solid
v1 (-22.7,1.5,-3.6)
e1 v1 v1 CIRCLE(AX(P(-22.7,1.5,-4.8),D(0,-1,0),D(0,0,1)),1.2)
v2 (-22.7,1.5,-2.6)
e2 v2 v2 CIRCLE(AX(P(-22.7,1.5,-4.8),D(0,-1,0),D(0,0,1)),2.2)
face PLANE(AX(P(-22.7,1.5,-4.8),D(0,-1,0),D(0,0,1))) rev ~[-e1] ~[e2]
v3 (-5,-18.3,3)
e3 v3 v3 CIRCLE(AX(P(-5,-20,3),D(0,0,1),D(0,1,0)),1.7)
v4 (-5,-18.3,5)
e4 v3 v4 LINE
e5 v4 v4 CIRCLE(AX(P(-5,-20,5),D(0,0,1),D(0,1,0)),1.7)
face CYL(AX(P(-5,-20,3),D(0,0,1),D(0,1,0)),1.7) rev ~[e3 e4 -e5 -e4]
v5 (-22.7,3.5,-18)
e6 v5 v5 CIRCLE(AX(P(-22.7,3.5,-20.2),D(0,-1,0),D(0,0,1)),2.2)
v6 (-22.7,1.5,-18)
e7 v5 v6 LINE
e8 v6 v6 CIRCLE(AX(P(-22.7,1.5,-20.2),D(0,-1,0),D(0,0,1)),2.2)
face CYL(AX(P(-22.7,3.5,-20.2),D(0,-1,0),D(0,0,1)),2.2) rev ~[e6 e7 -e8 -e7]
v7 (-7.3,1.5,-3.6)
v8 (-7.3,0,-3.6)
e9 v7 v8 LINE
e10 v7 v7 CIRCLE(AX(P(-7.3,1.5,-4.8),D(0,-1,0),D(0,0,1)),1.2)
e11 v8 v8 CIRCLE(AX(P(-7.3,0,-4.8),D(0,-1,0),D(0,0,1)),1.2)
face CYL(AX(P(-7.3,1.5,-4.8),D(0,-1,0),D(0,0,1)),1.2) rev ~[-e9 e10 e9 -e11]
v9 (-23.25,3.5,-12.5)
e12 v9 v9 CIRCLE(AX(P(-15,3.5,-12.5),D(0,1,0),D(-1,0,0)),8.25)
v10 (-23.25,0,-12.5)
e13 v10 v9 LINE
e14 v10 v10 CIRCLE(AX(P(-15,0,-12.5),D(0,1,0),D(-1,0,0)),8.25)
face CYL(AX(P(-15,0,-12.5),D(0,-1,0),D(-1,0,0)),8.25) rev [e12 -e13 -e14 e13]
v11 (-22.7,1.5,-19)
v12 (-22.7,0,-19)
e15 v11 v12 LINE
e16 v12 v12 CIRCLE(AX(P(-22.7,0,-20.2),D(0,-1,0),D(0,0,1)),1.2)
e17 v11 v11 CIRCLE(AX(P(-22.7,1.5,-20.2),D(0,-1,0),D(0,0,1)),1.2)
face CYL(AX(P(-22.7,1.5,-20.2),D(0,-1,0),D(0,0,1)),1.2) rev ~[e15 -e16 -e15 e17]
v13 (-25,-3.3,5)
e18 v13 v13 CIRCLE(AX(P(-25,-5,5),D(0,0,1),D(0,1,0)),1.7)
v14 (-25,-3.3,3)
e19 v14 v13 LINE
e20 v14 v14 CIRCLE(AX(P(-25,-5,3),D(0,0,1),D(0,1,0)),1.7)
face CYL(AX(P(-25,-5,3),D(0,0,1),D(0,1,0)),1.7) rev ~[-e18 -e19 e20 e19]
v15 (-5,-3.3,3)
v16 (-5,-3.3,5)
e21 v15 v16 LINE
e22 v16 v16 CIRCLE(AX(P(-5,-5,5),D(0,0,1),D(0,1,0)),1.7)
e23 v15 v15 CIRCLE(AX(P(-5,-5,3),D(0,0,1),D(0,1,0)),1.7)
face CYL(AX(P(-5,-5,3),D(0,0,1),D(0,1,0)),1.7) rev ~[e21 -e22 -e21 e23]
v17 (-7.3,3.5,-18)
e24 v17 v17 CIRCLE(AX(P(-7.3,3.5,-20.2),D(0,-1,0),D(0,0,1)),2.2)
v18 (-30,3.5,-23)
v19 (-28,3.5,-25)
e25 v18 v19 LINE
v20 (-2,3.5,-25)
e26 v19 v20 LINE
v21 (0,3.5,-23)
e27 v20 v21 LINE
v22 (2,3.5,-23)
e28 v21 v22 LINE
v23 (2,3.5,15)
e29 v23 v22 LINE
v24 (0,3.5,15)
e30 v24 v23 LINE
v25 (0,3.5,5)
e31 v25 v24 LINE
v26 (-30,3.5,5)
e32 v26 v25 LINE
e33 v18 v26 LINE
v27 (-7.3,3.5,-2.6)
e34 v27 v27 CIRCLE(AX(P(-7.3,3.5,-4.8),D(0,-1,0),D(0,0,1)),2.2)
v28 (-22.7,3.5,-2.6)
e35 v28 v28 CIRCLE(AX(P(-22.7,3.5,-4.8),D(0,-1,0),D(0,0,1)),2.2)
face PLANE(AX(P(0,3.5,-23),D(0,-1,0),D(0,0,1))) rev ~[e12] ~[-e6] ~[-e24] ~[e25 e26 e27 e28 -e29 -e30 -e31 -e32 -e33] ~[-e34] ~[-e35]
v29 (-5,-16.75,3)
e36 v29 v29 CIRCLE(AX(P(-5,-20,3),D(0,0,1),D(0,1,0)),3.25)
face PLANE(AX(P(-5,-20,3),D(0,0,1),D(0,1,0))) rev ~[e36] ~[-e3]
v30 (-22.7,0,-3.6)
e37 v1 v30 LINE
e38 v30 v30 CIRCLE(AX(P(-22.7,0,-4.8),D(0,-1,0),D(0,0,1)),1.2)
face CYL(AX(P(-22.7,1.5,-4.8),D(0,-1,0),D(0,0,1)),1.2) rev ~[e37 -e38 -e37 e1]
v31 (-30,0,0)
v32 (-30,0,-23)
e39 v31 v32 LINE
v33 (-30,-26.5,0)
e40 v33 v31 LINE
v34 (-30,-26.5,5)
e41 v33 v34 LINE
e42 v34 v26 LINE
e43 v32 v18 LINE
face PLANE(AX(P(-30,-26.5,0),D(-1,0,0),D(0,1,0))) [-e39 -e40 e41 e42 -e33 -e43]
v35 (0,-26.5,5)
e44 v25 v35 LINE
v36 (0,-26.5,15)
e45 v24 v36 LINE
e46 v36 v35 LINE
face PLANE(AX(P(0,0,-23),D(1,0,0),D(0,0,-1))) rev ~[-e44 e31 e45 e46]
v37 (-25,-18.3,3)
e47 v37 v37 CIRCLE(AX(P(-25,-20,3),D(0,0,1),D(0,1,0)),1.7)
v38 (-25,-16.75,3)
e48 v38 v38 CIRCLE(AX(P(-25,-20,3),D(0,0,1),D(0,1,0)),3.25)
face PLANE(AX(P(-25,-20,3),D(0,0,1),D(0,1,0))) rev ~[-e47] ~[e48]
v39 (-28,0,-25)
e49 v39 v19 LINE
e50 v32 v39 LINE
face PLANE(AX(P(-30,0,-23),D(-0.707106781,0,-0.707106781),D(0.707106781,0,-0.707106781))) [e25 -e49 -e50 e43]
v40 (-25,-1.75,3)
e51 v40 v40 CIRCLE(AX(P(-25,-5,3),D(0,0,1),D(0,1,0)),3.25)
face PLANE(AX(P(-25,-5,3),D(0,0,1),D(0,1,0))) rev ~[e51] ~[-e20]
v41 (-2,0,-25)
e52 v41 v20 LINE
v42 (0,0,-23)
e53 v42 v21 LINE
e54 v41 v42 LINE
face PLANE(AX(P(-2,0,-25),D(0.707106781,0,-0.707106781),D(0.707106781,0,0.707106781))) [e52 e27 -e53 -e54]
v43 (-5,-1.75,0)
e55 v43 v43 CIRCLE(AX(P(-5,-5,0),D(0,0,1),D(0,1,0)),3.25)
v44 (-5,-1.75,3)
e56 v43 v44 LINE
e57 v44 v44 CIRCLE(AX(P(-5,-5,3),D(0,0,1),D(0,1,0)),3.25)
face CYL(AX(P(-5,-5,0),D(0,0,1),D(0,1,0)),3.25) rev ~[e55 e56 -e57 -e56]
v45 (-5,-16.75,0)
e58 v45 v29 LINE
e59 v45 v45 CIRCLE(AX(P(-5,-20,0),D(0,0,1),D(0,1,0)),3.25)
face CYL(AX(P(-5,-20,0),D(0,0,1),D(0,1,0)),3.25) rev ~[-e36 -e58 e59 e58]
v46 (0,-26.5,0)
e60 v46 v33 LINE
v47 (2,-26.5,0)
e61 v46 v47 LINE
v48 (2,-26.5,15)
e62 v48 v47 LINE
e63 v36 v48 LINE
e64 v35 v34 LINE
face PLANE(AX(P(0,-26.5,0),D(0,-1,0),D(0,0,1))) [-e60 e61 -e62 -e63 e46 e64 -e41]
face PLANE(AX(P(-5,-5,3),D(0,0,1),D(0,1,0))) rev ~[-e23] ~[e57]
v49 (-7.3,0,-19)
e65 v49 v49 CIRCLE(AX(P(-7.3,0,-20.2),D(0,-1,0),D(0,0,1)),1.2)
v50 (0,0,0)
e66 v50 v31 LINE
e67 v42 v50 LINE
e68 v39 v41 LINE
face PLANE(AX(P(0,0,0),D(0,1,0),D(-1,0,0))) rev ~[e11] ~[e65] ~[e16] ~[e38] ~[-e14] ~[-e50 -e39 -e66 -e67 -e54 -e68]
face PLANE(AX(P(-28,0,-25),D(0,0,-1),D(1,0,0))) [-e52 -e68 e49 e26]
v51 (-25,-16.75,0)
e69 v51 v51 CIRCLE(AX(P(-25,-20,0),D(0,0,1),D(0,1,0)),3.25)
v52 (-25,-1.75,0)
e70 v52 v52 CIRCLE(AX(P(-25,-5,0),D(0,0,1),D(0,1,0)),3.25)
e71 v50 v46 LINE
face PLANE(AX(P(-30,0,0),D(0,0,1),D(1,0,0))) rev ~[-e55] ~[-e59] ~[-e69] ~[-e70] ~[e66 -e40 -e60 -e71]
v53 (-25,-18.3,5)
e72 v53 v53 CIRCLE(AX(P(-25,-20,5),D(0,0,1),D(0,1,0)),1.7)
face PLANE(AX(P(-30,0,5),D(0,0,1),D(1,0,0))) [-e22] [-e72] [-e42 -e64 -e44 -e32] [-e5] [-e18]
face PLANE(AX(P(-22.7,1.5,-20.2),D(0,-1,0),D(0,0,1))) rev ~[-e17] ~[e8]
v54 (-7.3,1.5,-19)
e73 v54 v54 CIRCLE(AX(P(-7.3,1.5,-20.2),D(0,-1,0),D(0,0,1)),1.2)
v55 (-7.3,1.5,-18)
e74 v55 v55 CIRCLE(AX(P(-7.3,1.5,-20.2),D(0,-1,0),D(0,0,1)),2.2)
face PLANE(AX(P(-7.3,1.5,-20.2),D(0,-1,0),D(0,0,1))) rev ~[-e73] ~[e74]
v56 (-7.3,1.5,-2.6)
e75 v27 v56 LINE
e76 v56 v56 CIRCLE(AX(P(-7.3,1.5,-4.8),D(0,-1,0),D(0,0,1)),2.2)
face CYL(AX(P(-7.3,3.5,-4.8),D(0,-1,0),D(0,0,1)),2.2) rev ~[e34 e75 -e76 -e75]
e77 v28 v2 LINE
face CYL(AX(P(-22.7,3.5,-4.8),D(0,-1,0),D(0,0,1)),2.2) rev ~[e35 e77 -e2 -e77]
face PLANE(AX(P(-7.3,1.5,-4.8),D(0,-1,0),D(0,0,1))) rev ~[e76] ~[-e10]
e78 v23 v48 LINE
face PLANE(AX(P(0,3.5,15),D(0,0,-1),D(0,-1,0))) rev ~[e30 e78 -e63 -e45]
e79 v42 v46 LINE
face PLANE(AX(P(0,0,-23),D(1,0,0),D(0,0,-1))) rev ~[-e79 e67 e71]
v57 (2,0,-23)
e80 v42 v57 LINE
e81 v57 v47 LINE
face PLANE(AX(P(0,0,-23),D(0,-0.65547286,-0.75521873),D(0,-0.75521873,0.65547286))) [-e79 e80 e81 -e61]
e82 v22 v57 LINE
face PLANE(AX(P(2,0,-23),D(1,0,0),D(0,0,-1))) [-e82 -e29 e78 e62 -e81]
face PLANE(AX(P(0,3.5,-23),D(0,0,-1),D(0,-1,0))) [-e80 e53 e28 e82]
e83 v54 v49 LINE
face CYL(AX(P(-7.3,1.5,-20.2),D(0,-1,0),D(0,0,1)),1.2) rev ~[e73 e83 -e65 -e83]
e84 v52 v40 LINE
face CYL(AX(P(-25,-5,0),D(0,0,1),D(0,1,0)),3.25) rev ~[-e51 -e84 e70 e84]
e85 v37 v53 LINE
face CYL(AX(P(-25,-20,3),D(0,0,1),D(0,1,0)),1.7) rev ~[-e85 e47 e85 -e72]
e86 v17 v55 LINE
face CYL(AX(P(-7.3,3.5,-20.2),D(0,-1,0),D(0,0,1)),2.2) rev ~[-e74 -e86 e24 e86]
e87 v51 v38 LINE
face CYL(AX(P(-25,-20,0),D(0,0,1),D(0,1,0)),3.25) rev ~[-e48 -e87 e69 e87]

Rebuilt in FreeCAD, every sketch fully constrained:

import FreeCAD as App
import Part
import Sketcher

V = App.Vector
Q = App.Units.Quantity

doc = App.newDocument("Part")
body = doc.addObject("PartDesign::Body", "Body")

# Sketch on XZ plane
sketch1 = body.newObject("Sketcher::SketchObject", "Sketch")
sketch1.AttachmentSupport = (doc.getObject("XZ_Plane"), [""])
sketch1.MapMode = "FlatFace"
sketch1.addGeometry(Part.LineSegment(V(-30, 0, 0), V(0, 0, 0)), False)
sketch1.addGeometry(Part.LineSegment(V(0, 0, 0), V(0, -23, 0)), False)
sketch1.addGeometry(Part.LineSegment(V(0, -23, 0), V(-2, -25, 0)), False)
sketch1.addGeometry(Part.LineSegment(V(-2, -25, 0), V(-28, -25, 0)), False)
sketch1.addGeometry(Part.LineSegment(V(-28, -25, 0), V(-30, -23, 0)), False)
sketch1.addGeometry(Part.LineSegment(V(-30, -23, 0), V(-30, 0, 0)), False)
sketch1.addGeometry(Part.Circle(V(-15, -12.5, 0), V(0, 0, 1), 8.2), False)
sketch1.addConstraint(Sketcher.Constraint("Coincident", 0, 2, 1, 1))
sketch1.addConstraint(Sketcher.Constraint("Coincident", 1, 2, 2, 1))
sketch1.addConstraint(Sketcher.Constraint("Coincident", 2, 2, 3, 1))
sketch1.addConstraint(Sketcher.Constraint("Coincident", 3, 2, 4, 1))
sketch1.addConstraint(Sketcher.Constraint("Coincident", 4, 2, 5, 1))
sketch1.addConstraint(Sketcher.Constraint("Coincident", 5, 2, 0, 1))
sketch1.addConstraint(Sketcher.Constraint("Horizontal", 0))
sketch1.addConstraint(Sketcher.Constraint("Vertical", 1))
sketch1.addConstraint(Sketcher.Constraint("Horizontal", 3))
sketch1.addConstraint(Sketcher.Constraint("Vertical", 5))
sketch1.addConstraint(Sketcher.Constraint("Coincident", 0, 2, -1, 1))
sketch1.addConstraint(Sketcher.Constraint("Perpendicular", 2, 4))
sketch1.addConstraint(Sketcher.Constraint("Horizontal", 1, 2, 4, 2))
sketch1.addConstraint(Sketcher.Constraint("Equal", 2, 4))
sketch1.addConstraint(Sketcher.Constraint("Diameter", 6, Q("16.5 mm")))
sketch1.addConstraint(Sketcher.Constraint("DistanceX", 0, 1, 0, 2, Q("30 mm")))
sketch1.addConstraint(Sketcher.Constraint("DistanceX", 6, 3, -1, 1, Q("15 mm")))
sketch1.addConstraint(Sketcher.Constraint("DistanceX", 2, 2, -1, 1, Q("2 mm")))
sketch1.addConstraint(Sketcher.Constraint("DistanceY", 2, 2, -1, 1, Q("25 mm")))
sketch1.addConstraint(Sketcher.Constraint("DistanceY", 6, 3, -1, 1, Q("12.5 mm")))
pad1 = body.newObject("PartDesign::Pad", "Pad")
pad1.Profile = sketch1
pad1.Length = 3.5
pad1.Reversed = True

# Sketch on XZ plane
sketch2 = body.newObject("Sketcher::SketchObject", "Sketch001")
sketch2.AttachmentSupport = (doc.getObject("XZ_Plane"), [""])
sketch2.MapMode = "FlatFace"
sketch2.AttachmentOffset = App.Placement(V(0, 0, -3.5), App.Rotation())
sketch2.addGeometry(Part.Circle(V(-22.7, -4.8, 0), V(0, 0, 1), 1.2), False)
sketch2.addGeometry(Part.Circle(V(-22.7, -20.2, 0), V(0, 0, 1), 1.2), False)
sketch2.addGeometry(Part.Circle(V(-7.3, -20.2, 0), V(0, 0, 1), 1.2), False)
sketch2.addGeometry(Part.Circle(V(-7.3, -4.8, 0), V(0, 0, 1), 1.2), False)
sketch2.addConstraint(Sketcher.Constraint("Equal", 0, 1))
sketch2.addConstraint(Sketcher.Constraint("Equal", 1, 2))
sketch2.addConstraint(Sketcher.Constraint("Equal", 2, 3))
sketch2.addConstraint(Sketcher.Constraint("Horizontal", 1, 3, 2, 3))
sketch2.addConstraint(Sketcher.Constraint("Horizontal", 0, 3, 3, 3))
sketch2.addConstraint(Sketcher.Constraint("Vertical", 0, 3, 1, 3))
sketch2.addConstraint(Sketcher.Constraint("Vertical", 2, 3, 3, 3))
sketch2.addConstraint(Sketcher.Constraint("Diameter", 0, Q("2.4 mm")))
sketch2.addConstraint(Sketcher.Constraint("DistanceX", 0, 3, -1, 1, Q("22.7 mm")))
sketch2.addConstraint(Sketcher.Constraint("DistanceY", 0, 3, -1, 1, Q("4.8 mm")))
sketch2.addConstraint(Sketcher.Constraint("DistanceY", 1, 3, -1, 1, Q("20.2 mm")))
sketch2.addConstraint(Sketcher.Constraint("DistanceX", 2, 3, -1, 1, Q("7.3 mm")))
doc.recompute()
hole = body.newObject("PartDesign::Hole", "Hole")
hole.Profile = sketch2
hole.ThreadType = "None"
hole.Diameter = 2.4
hole.DepthType = "ThroughAll"
hole.HoleCutType = "Counterbore"
hole.HoleCutDiameter = 4.4
hole.HoleCutDepth = 2
hole.Reversed = True

# Sketch on XY plane
sketch3 = body.newObject("Sketcher::SketchObject", "Sketch002")
sketch3.AttachmentSupport = (doc.getObject("XY_Plane"), [""])
sketch3.MapMode = "FlatFace"
sketch3.addGeometry(Part.LineSegment(V(0, 4, 0), V(-30, 4, 0)), False)
sketch3.addGeometry(Part.LineSegment(V(-30, 4, 0), V(-30, -26, 0)), False)
sketch3.addGeometry(Part.LineSegment(V(-30, -26, 0), V(0, -26, 0)), False)
sketch3.addGeometry(Part.LineSegment(V(0, -26, 0), V(0, 4, 0)), False)
sketch3.addConstraint(Sketcher.Constraint("Coincident", 0, 2, 1, 1))
sketch3.addConstraint(Sketcher.Constraint("Coincident", 1, 2, 2, 1))
sketch3.addConstraint(Sketcher.Constraint("Coincident", 2, 2, 3, 1))
sketch3.addConstraint(Sketcher.Constraint("Coincident", 3, 2, 0, 1))
sketch3.addConstraint(Sketcher.Constraint("Horizontal", 0))
sketch3.addConstraint(Sketcher.Constraint("Vertical", 1))
sketch3.addConstraint(Sketcher.Constraint("Horizontal", 2))
sketch3.addConstraint(Sketcher.Constraint("Vertical", 3))
sketch3.addConstraint(Sketcher.Constraint("PointOnObject", 2, 2, -2))
sketch3.addConstraint(Sketcher.Constraint("Equal", 2, 1))
sketch3.addConstraint(Sketcher.Constraint("DistanceX", 0, 2, 0, 1, Q("30 mm")))
sketch3.addConstraint(Sketcher.Constraint("DistanceY", -1, 1, 0, 2, Q("3.5 mm")))
pad2 = body.newObject("PartDesign::Pad", "Pad001")
pad2.Profile = sketch3
pad2.Length = 5

# Sketch on XY plane
sketch4 = body.newObject("Sketcher::SketchObject", "Sketch003")
sketch4.AttachmentSupport = (doc.getObject("XY_Plane"), [""])
sketch4.MapMode = "FlatFace"
sketch4.addGeometry(Part.Circle(V(-25, -5, 0), V(0, 0, 1), 1.7), False)
sketch4.addGeometry(Part.Circle(V(-25, -20, 0), V(0, 0, 1), 1.7), False)
sketch4.addGeometry(Part.Circle(V(-5, -20, 0), V(0, 0, 1), 1.7), False)
sketch4.addGeometry(Part.Circle(V(-5, -5, 0), V(0, 0, 1), 1.7), False)
sketch4.addConstraint(Sketcher.Constraint("Equal", 0, 1))
sketch4.addConstraint(Sketcher.Constraint("Equal", 1, 2))
sketch4.addConstraint(Sketcher.Constraint("Equal", 2, 3))
sketch4.addConstraint(Sketcher.Constraint("Horizontal", 1, 3, 2, 3))
sketch4.addConstraint(Sketcher.Constraint("Horizontal", 0, 3, 3, 3))
sketch4.addConstraint(Sketcher.Constraint("Vertical", 0, 3, 1, 3))
sketch4.addConstraint(Sketcher.Constraint("Vertical", 2, 3, 3, 3))
sketch4.addConstraint(Sketcher.Constraint("Diameter", 0, Q("3.4 mm")))
sketch4.addConstraint(Sketcher.Constraint("DistanceX", 0, 3, -1, 1, Q("25 mm")))
sketch4.addConstraint(Sketcher.Constraint("DistanceY", 0, 3, -1, 1, Q("5 mm")))
sketch4.addConstraint(Sketcher.Constraint("DistanceY", 1, 3, -1, 1, Q("20 mm")))
sketch4.addConstraint(Sketcher.Constraint("DistanceX", 2, 3, -1, 1, Q("5 mm")))
doc.recompute()
hole2 = body.newObject("PartDesign::Hole", "Hole001")
hole2.Profile = sketch4
hole2.ThreadType = "None"
hole2.Diameter = 3.4
hole2.DepthType = "ThroughAll"
hole2.HoleCutType = "Counterbore"
hole2.HoleCutDiameter = 6.5
hole2.HoleCutDepth = 3
hole2.Reversed = True

# Sketch on YZ plane
sketch5 = body.newObject("Sketcher::SketchObject", "Sketch004")
sketch5.AttachmentSupport = (doc.getObject("YZ_Plane"), [""])
sketch5.MapMode = "FlatFace"
sketch5.addGeometry(Part.LineSegment(V(0, -23, 0), V(3.5, -23, 0)), False)
sketch5.addGeometry(Part.LineSegment(V(3.5, -23, 0), V(3.5, 15, 0)), False)
sketch5.addGeometry(Part.LineSegment(V(3.5, 15, 0), V(-26.5, 15, 0)), False)
sketch5.addGeometry(Part.LineSegment(V(-26.5, 15, 0), V(-26.5, 0, 0)), False)
sketch5.addGeometry(Part.LineSegment(V(-26.5, 0, 0), V(0, -23, 0)), False)
sketch5.addConstraint(Sketcher.Constraint("Coincident", 0, 2, 1, 1))
sketch5.addConstraint(Sketcher.Constraint("Coincident", 1, 2, 2, 1))
sketch5.addConstraint(Sketcher.Constraint("Coincident", 2, 2, 3, 1))
sketch5.addConstraint(Sketcher.Constraint("Coincident", 3, 2, 4, 1))
sketch5.addConstraint(Sketcher.Constraint("Coincident", 4, 2, 0, 1))
sketch5.addConstraint(Sketcher.Constraint("Horizontal", 0))
sketch5.addConstraint(Sketcher.Constraint("Vertical", 1))
sketch5.addConstraint(Sketcher.Constraint("Horizontal", 2))
sketch5.addConstraint(Sketcher.Constraint("Vertical", 3))
sketch5.addConstraint(Sketcher.Constraint("PointOnObject", 3, 2, -1))
sketch5.addConstraint(Sketcher.Constraint("PointOnObject", 4, 2, -2))
sketch5.addConstraint(Sketcher.Constraint("DistanceX", 2, 2, 2, 1, Q("30 mm")))
sketch5.addConstraint(Sketcher.Constraint("DistanceY", 1, 1, 1, 2, Q("38 mm")))
sketch5.addConstraint(Sketcher.Constraint("DistanceY", 3, 2, 3, 1, Q("15 mm")))
sketch5.addConstraint(Sketcher.Constraint("DistanceX", 0, 1, 0, 2, Q("3.5 mm")))
pad3 = body.newObject("PartDesign::Pad", "Pad002")
pad3.Profile = sketch5
pad3.Length = 2

doc.recompute()
